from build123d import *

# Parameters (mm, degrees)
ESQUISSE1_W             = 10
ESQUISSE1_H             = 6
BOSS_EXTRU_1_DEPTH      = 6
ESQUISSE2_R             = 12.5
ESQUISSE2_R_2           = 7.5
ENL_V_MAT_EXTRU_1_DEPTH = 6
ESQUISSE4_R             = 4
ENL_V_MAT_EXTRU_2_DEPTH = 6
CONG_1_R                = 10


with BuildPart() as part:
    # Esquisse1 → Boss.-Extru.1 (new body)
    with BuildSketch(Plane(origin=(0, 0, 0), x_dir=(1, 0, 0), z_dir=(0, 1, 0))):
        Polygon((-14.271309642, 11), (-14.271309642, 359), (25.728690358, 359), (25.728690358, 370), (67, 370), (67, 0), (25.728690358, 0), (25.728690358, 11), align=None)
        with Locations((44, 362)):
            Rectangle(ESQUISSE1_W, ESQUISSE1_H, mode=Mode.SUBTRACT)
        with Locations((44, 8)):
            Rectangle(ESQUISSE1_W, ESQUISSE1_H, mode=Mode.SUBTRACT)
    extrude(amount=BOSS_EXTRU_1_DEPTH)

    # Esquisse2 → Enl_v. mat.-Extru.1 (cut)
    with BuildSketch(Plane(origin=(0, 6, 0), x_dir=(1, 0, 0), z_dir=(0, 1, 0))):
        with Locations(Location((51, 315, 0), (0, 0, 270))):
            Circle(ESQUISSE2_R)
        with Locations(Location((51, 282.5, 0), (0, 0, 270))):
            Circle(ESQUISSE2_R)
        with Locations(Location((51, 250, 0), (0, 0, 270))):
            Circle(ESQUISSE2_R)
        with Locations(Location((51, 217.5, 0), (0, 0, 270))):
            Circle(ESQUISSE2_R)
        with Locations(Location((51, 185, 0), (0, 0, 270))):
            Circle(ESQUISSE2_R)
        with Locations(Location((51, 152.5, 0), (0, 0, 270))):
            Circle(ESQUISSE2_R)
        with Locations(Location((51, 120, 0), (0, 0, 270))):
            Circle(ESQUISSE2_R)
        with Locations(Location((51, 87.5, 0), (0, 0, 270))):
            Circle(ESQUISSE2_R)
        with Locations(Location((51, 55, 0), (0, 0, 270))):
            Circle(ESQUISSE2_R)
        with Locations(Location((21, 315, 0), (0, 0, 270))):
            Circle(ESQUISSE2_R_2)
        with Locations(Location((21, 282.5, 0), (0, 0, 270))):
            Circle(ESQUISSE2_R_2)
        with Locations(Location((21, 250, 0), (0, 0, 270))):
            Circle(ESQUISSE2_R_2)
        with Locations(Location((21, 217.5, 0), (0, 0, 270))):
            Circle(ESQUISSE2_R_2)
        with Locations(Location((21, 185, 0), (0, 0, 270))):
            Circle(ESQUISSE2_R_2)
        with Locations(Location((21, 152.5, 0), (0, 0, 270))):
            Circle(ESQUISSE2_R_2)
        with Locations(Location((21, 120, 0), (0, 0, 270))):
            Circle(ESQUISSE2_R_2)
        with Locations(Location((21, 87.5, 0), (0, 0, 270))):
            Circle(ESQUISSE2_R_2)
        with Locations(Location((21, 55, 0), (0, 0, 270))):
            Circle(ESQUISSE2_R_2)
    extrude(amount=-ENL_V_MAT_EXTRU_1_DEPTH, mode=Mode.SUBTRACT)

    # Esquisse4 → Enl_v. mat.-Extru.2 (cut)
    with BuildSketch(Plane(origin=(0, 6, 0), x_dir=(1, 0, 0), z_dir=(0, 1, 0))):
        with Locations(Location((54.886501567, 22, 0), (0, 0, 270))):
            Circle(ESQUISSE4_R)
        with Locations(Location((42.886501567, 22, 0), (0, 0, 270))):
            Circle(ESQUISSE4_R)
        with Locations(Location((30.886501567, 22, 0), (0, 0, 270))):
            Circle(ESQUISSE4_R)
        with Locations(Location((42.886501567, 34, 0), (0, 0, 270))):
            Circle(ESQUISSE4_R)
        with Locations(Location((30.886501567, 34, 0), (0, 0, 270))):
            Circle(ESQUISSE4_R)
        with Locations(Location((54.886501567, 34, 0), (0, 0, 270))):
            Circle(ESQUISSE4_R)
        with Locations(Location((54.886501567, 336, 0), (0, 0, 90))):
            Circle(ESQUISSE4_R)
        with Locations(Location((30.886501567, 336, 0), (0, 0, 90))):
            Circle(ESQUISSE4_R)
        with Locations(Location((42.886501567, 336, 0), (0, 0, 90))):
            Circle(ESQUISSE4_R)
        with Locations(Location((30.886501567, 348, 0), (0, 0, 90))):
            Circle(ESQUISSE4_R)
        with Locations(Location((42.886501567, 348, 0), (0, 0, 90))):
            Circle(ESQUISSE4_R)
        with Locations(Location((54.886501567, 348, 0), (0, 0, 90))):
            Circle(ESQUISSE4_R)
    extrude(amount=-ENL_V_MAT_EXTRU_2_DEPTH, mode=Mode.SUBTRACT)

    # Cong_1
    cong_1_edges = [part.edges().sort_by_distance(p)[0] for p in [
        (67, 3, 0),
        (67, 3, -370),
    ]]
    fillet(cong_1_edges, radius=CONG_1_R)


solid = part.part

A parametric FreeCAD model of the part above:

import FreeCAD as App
import Part
import Sketcher
from FreeCAD import Vector
Q = App.Units.Quantity


def edges_at(feature, points):
    """Names of the edges that pass closest to the given points."""
    edges = feature.Shape.Edges
    near = lambda p: min(range(len(edges)), key=lambda i: edges[i].distToShape(Part.Vertex(*p))[0])
    return sorted({f"Edge{near(p) + 1}" for p in points})

doc = App.newDocument("Part")
body = doc.addObject("PartDesign::Body", "Body")

sketch1 = body.newObject("Sketcher::SketchObject", "Sketch")
sketch1.AttachmentSupport = (doc.getObject("XZ_Plane"), [""])
sketch1.MapMode = "FlatFace"
sketch1.addGeometry(Part.LineSegment(Vector(-14, -359, 0), Vector(-14, -11, 0)), False)
sketch1.addGeometry(Part.LineSegment(Vector(-14, -11, 0), Vector(26, -11, 0)), False)
sketch1.addGeometry(Part.LineSegment(Vector(26, -11, 0), Vector(26, 0, 0)), False)
sketch1.addGeometry(Part.LineSegment(Vector(26, 0, 0), Vector(67, 0, 0)), False)
sketch1.addGeometry(Part.LineSegment(Vector(67, 0, 0), Vector(67, -370, 0)), False)
sketch1.addGeometry(Part.LineSegment(Vector(67, -370, 0), Vector(26, -370, 0)), False)
sketch1.addGeometry(Part.LineSegment(Vector(26, -370, 0), Vector(26, -359, 0)), False)
sketch1.addGeometry(Part.LineSegment(Vector(26, -359, 0), Vector(-14, -359, 0)), False)
sketch1.addGeometry(Part.LineSegment(Vector(39, -5, 0), Vector(39, -11, 0)), False)
sketch1.addGeometry(Part.LineSegment(Vector(39, -11, 0), Vector(49, -11, 0)), False)
sketch1.addGeometry(Part.LineSegment(Vector(49, -11, 0), Vector(49, -5, 0)), False)
sketch1.addGeometry(Part.LineSegment(Vector(49, -5, 0), Vector(39, -5, 0)), False)
sketch1.addGeometry(Part.LineSegment(Vector(39, -359, 0), Vector(39, -365, 0)), False)
sketch1.addGeometry(Part.LineSegment(Vector(39, -365, 0), Vector(49, -365, 0)), False)
sketch1.addGeometry(Part.LineSegment(Vector(49, -365, 0), Vector(49, -359, 0)), False)
sketch1.addGeometry(Part.LineSegment(Vector(49, -359, 0), Vector(39, -359, 0)), False)
sketch1.addConstraint(Sketcher.Constraint("Coincident", 0, 2, 1, 1))
sketch1.addConstraint(Sketcher.Constraint("Coincident", 1, 2, 2, 1))
sketch1.addConstraint(Sketcher.Constraint("Coincident", 2, 2, 3, 1))
sketch1.addConstraint(Sketcher.Constraint("Coincident", 3, 2, 4, 1))
sketch1.addConstraint(Sketcher.Constraint("Coincident", 4, 2, 5, 1))
sketch1.addConstraint(Sketcher.Constraint("Coincident", 5, 2, 6, 1))
sketch1.addConstraint(Sketcher.Constraint("Coincident", 6, 2, 7, 1))
sketch1.addConstraint(Sketcher.Constraint("Coincident", 7, 2, 0, 1))
sketch1.addConstraint(Sketcher.Constraint("Coincident", 8, 2, 9, 1))
sketch1.addConstraint(Sketcher.Constraint("Coincident", 9, 2, 10, 1))
sketch1.addConstraint(Sketcher.Constraint("Coincident", 10, 2, 11, 1))
sketch1.addConstraint(Sketcher.Constraint("Coincident", 11, 2, 8, 1))
sketch1.addConstraint(Sketcher.Constraint("Coincident", 12, 2, 13, 1))
sketch1.addConstraint(Sketcher.Constraint("Coincident", 13, 2, 14, 1))
sketch1.addConstraint(Sketcher.Constraint("Coincident", 14, 2, 15, 1))
sketch1.addConstraint(Sketcher.Constraint("Coincident", 15, 2, 12, 1))
sketch1.addConstraint(Sketcher.Constraint("Vertical", 0))
sketch1.addConstraint(Sketcher.Constraint("Horizontal", 1))
sketch1.addConstraint(Sketcher.Constraint("Vertical", 2))
sketch1.addConstraint(Sketcher.Constraint("Horizontal", 3))
sketch1.addConstraint(Sketcher.Constraint("Vertical", 4))
sketch1.addConstraint(Sketcher.Constraint("Horizontal", 5))
sketch1.addConstraint(Sketcher.Constraint("Vertical", 6))
sketch1.addConstraint(Sketcher.Constraint("Horizontal", 7))
sketch1.addConstraint(Sketcher.Constraint("Vertical", 8))
sketch1.addConstraint(Sketcher.Constraint("Horizontal", 9))
sketch1.addConstraint(Sketcher.Constraint("Vertical", 10))
sketch1.addConstraint(Sketcher.Constraint("Horizontal", 11))
sketch1.addConstraint(Sketcher.Constraint("Vertical", 12))
sketch1.addConstraint(Sketcher.Constraint("Horizontal", 13))
sketch1.addConstraint(Sketcher.Constraint("Vertical", 14))
sketch1.addConstraint(Sketcher.Constraint("Horizontal", 15))
sketch1.addConstraint(Sketcher.Constraint("PointOnObject", 2, 2, -1))
sketch1.addConstraint(Sketcher.Constraint("Horizontal", 1, 2, 8, 2))
sketch1.addConstraint(Sketcher.Constraint("Horizontal", 7, 2, 14, 2))
sketch1.addConstraint(Sketcher.Constraint("Vertical", 2, 2, 5, 2))
sketch1.addConstraint(Sketcher.Constraint("Vertical", 11, 2, 12, 2))
sketch1.addConstraint(Sketcher.Constraint("Vertical", 10, 2, 13, 2))
sketch1.addConstraint(Sketcher.Constraint("Equal", 2, 6))
sketch1.addConstraint(Sketcher.Constraint("Equal", 10, 12))
sketch1.addConstraint(Sketcher.Constraint("DistanceX", 1, 1, 1, 2, Q("40 mm")))
sketch1.addConstraint(Sketcher.Constraint("DistanceX", 9, 1, 9, 2, Q("10 mm")))
sketch1.addConstraint(Sketcher.Constraint("DistanceY", 0, 1, 0, 2, Q("348 mm")))
sketch1.addConstraint(Sketcher.Constraint("DistanceY", 2, 1, 2, 2, Q("11 mm")))
sketch1.addConstraint(Sketcher.Constraint("DistanceY", 8, 2, 8, 1, Q("6 mm")))
sketch1.addConstraint(Sketcher.Constraint("DistanceX", -1, 1, 3, 2, Q("67 mm")))
sketch1.addConstraint(Sketcher.Constraint("DistanceX", -1, 1, 8, 2, Q("39 mm")))
sketch1.addConstraint(Sketcher.Constraint("DistanceX", 3, 1, 3, 2, Q("41.27131 mm")))
pad1 = body.newObject("PartDesign::Pad", "Pad")
pad1.Profile = sketch1
pad1.Length = 6
pad1.Reversed = True

sketch2 = body.newObject("Sketcher::SketchObject", "Sketch001")
sketch2.AttachmentSupport = (doc.getObject("XZ_Plane"), [""])
sketch2.MapMode = "FlatFace"
sketch2.AttachmentOffset = App.Placement(Vector(0, 0, -6), App.Rotation())
sketch2.addGeometry(Part.Circle(Vector(51, -315, 0), Vector(0, 0, 1), 12), False)
sketch2.addGeometry(Part.Circle(Vector(51, -282, 0), Vector(0, 0, 1), 12), False)
sketch2.addGeometry(Part.Circle(Vector(51, -250, 0), Vector(0, 0, 1), 12), False)
sketch2.addGeometry(Part.Circle(Vector(51, -218, 0), Vector(0, 0, 1), 12), False)
sketch2.addGeometry(Part.Circle(Vector(51, -185, 0), Vector(0, 0, 1), 12), False)
sketch2.addGeometry(Part.Circle(Vector(51, -152, 0), Vector(0, 0, 1), 12), False)
sketch2.addGeometry(Part.Circle(Vector(51, -120, 0), Vector(0, 0, 1), 12), False)
sketch2.addGeometry(Part.Circle(Vector(51, -88, 0), Vector(0, 0, 1), 12), False)
sketch2.addGeometry(Part.Circle(Vector(51, -55, 0), Vector(0, 0, 1), 12), False)
sketch2.addGeometry(Part.Circle(Vector(21, -315, 0), Vector(0, 0, 1), 8), False)
sketch2.addGeometry(Part.Circle(Vector(21, -282, 0), Vector(0, 0, 1), 8), False)
sketch2.addGeometry(Part.Circle(Vector(21, -250, 0), Vector(0, 0, 1), 8), False)
sketch2.addGeometry(Part.Circle(Vector(21, -218, 0), Vector(0, 0, 1), 8), False)
sketch2.addGeometry(Part.Circle(Vector(21, -185, 0), Vector(0, 0, 1), 8), False)
sketch2.addGeometry(Part.Circle(Vector(21, -152, 0), Vector(0, 0, 1), 8), False)
sketch2.addGeometry(Part.Circle(Vector(21, -120, 0), Vector(0, 0, 1), 8), False)
sketch2.addGeometry(Part.Circle(Vector(21, -88, 0), Vector(0, 0, 1), 8), False)
sketch2.addGeometry(Part.Circle(Vector(21, -55, 0), Vector(0, 0, 1), 8), False)
sketch2.addConstraint(Sketcher.Constraint("Equal", 0, 1))
sketch2.addConstraint(Sketcher.Constraint("Equal", 1, 2))
sketch2.addConstraint(Sketcher.Constraint("Equal", 2, 3))
sketch2.addConstraint(Sketcher.Constraint("Equal", 3, 4))
sketch2.addConstraint(Sketcher.Constraint("Equal", 4, 5))
sketch2.addConstraint(Sketcher.Constraint("Equal", 5, 6))
sketch2.addConstraint(Sketcher.Constraint("Equal", 6, 7))
sketch2.addConstraint(Sketcher.Constraint("Equal", 7, 8))
sketch2.addConstraint(Sketcher.Constraint("Equal", 9, 10))
sketch2.addConstraint(Sketcher.Constraint("Equal", 10, 11))
sketch2.addConstraint(Sketcher.Constraint("Equal", 11, 12))
sketch2.addConstraint(Sketcher.Constraint("Equal", 12, 13))
sketch2.addConstraint(Sketcher.Constraint("Equal", 13, 14))
sketch2.addConstraint(Sketcher.Constraint("Equal", 14, 15))
sketch2.addConstraint(Sketcher.Constraint("Equal", 15, 16))
sketch2.addConstraint(Sketcher.Constraint("Equal", 16, 17))
sketch2.addConstraint(Sketcher.Constraint("Horizontal", 0, 3, 9, 3))
sketch2.addConstraint(Sketcher.Constraint("Horizontal", 1, 3, 10, 3))
sketch2.addConstraint(Sketcher.Constraint("Horizontal", 2, 3, 11, 3))
sketch2.addConstraint(Sketcher.Constraint("Horizontal", 3, 3, 12, 3))
sketch2.addConstraint(Sketcher.Constraint("Horizontal", 4, 3, 13, 3))
sketch2.addConstraint(Sketcher.Constraint("Horizontal", 5, 3, 14, 3))
sketch2.addConstraint(Sketcher.Constraint("Horizontal", 6, 3, 15, 3))
sketch2.addConstraint(Sketcher.Constraint("Horizontal", 7, 3, 16, 3))
sketch2.addConstraint(Sketcher.Constraint("Horizontal", 8, 3, 17, 3))
sketch2.addConstraint(Sketcher.Constraint("Vertical", 0, 3, 1, 3))
sketch2.addConstraint(Sketcher.Constraint("Vertical", 1, 3, 2, 3))
sketch2.addConstraint(Sketcher.Constraint("Vertical", 2, 3, 3, 3))
sketch2.addConstraint(Sketcher.Constraint("Vertical", 3, 3, 4, 3))
sketch2.addConstraint(Sketcher.Constraint("Vertical", 4, 3, 5, 3))
sketch2.addConstraint(Sketcher.Constraint("Vertical", 5, 3, 6, 3))
sketch2.addConstraint(Sketcher.Constraint("Vertical", 6, 3, 7, 3))
sketch2.addConstraint(Sketcher.Constraint("Vertical", 7, 3, 8, 3))
sketch2.addConstraint(Sketcher.Constraint("Vertical", 9, 3, 10, 3))
sketch2.addConstraint(Sketcher.Constraint("Vertical", 10, 3, 11, 3))
sketch2.addConstraint(Sketcher.Constraint("Vertical", 11, 3, 12, 3))
sketch2.addConstraint(Sketcher.Constraint("Vertical", 12, 3, 13, 3))
sketch2.addConstraint(Sketcher.Constraint("Vertical", 13, 3, 14, 3))
sketch2.addConstraint(Sketcher.Constraint("Vertical", 14, 3, 15, 3))
sketch2.addConstraint(Sketcher.Constraint("Vertical", 15, 3, 16, 3))
sketch2.addConstraint(Sketcher.Constraint("Vertical", 16, 3, 17, 3))
sketch2.addConstraint(Sketcher.Constraint("Diameter", 0, Q("25 mm")))
sketch2.addConstraint(Sketcher.Constraint("Diameter", 9, Q("15 mm")))
sketch2.addConstraint(Sketcher.Constraint("DistanceX", -1, 1, 0, 3, Q("51 mm")))
sketch2.addConstraint(Sketcher.Constraint("DistanceY", 0, 3, -1, 1, Q("315 mm")))
sketch2.addConstraint(Sketcher.Constraint("DistanceY", 2, 3, -1, 1, Q("250 mm")))
sketch2.addConstraint(Sketcher.Constraint("DistanceY", 4, 3, -1, 1, Q("185 mm")))
sketch2.addConstraint(Sketcher.Constraint("DistanceY", 6, 3, -1, 1, Q("120 mm")))
sketch2.addConstraint(Sketcher.Constraint("DistanceY", 8, 3, -1, 1, Q("55 mm")))
sketch2.addConstraint(Sketcher.Constraint("DistanceX", -1, 1, 9, 3, Q("21 mm")))
sketch2.addConstraint(Sketcher.Constraint("DistanceY", 1, 3, 3, 3, Q("65 mm")))
sketch2.addConstraint(Sketcher.Constraint("DistanceY", 3, 3, 5, 3, Q("65 mm")))
sketch2.addConstraint(Sketcher.Constraint("DistanceY", 5, 3, 7, 3, Q("65 mm")))
sketch2.addConstraint(Sketcher.Constraint("DistanceY", 1, 3, -1, 1, Q("282.5 mm")))
pocket1 = body.newObject("PartDesign::Pocket", "Pocket")
pocket1.Profile = sketch2
pocket1.Length = 6
pocket1.Reversed = True

sketch3 = body.newObject("Sketcher::SketchObject", "Sketch002")
sketch3.AttachmentSupport = (doc.getObject("XZ_Plane"), [""])
sketch3.MapMode = "FlatFace"
sketch3.AttachmentOffset = App.Placement(Vector(0, 0, -6), App.Rotation())
sketch3.addGeometry(Part.Circle(Vector(54.9, -22, 0), Vector(0, 0, 1), 4), False)
sketch3.addGeometry(Part.Circle(Vector(42.9, -22, 0), Vector(0, 0, 1), 4), False)
sketch3.addGeometry(Part.Circle(Vector(30.9, -22, 0), Vector(0, 0, 1), 4), False)
sketch3.addGeometry(Part.Circle(Vector(42.9, -34, 0), Vector(0, 0, 1), 4), False)
sketch3.addGeometry(Part.Circle(Vector(30.9, -34, 0), Vector(0, 0, 1), 4), False)
sketch3.addGeometry(Part.Circle(Vector(54.9, -34, 0), Vector(0, 0, 1), 4), False)
sketch3.addGeometry(Part.Circle(Vector(54.9, -336, 0), Vector(0, 0, 1), 4), False)
sketch3.addGeometry(Part.Circle(Vector(30.9, -336, 0), Vector(0, 0, 1), 4), False)
sketch3.addGeometry(Part.Circle(Vector(42.9, -336, 0), Vector(0, 0, 1), 4), False)
sketch3.addGeometry(Part.Circle(Vector(30.9, -348, 0), Vector(0, 0, 1), 4), False)
sketch3.addGeometry(Part.Circle(Vector(42.9, -348, 0), Vector(0, 0, 1), 4), False)
sketch3.addGeometry(Part.Circle(Vector(54.9, -348, 0), Vector(0, 0, 1), 4), False)
sketch3.addConstraint(Sketcher.Constraint("Equal", 0, 1))
sketch3.addConstraint(Sketcher.Constraint("Equal", 1, 2))
sketch3.addConstraint(Sketcher.Constraint("Equal", 2, 3))
sketch3.addConstraint(Sketcher.Constraint("Equal", 3, 4))
sketch3.addConstraint(Sketcher.Constraint("Equal", 4, 5))
sketch3.addConstraint(Sketcher.Constraint("Equal", 5, 6))
sketch3.addConstraint(Sketcher.Constraint("Equal", 6, 7))
sketch3.addConstraint(Sketcher.Constraint("Equal", 7, 8))
sketch3.addConstraint(Sketcher.Constraint("Equal", 8, 9))
sketch3.addConstraint(Sketcher.Constraint("Equal", 9, 10))
sketch3.addConstraint(Sketcher.Constraint("Equal", 10, 11))
sketch3.addConstraint(Sketcher.Constraint("Horizontal", 0, 3, 1, 3))
sketch3.addConstraint(Sketcher.Constraint("Horizontal", 1, 3, 2, 3))
sketch3.addConstraint(Sketcher.Constraint("Horizontal", 3, 3, 4, 3))
sketch3.addConstraint(Sketcher.Constraint("Horizontal", 4, 3, 5, 3))
sketch3.addConstraint(Sketcher.Constraint("Horizontal", 6, 3, 7, 3))
sketch3.addConstraint(Sketcher.Constraint("Horizontal", 7, 3, 8, 3))
sketch3.addConstraint(Sketcher.Constraint("Horizontal", 9, 3, 10, 3))
sketch3.addConstraint(Sketcher.Constraint("Horizontal", 10, 3, 11, 3))
sketch3.addConstraint(Sketcher.Constraint("Vertical", 1, 3, 3, 3))
sketch3.addConstraint(Sketcher.Constraint("Vertical", 2, 3, 4, 3))
sketch3.addConstraint(Sketcher.Constraint("Vertical", 0, 3, 5, 3))
sketch3.addConstraint(Sketcher.Constraint("Vertical", 5, 3, 6, 3))
sketch3.addConstraint(Sketcher.Constraint("Vertical", 4, 3, 7, 3))
sketch3.addConstraint(Sketcher.Constraint("Vertical", 3, 3, 8, 3))
sketch3.addConstraint(Sketcher.Constraint("Vertical", 7, 3, 9, 3))
sketch3.addConstraint(Sketcher.Constraint("Vertical", 8, 3, 10, 3))
sketch3.addConstraint(Sketcher.Constraint("Vertical", 6, 3, 11, 3))
sketch3.addConstraint(Sketcher.Constraint("Diameter", 0, Q("8 mm")))
sketch3.addConstraint(Sketcher.Constraint("DistanceY", 0, 3, -1, 1, Q("22 mm")))
sketch3.addConstraint(Sketcher.Constraint("DistanceY", 3, 3, -1, 1, Q("34 mm")))
sketch3.addConstraint(Sketcher.Constraint("DistanceY", 6, 3, -1, 1, Q("336 mm")))
sketch3.addConstraint(Sketcher.Constraint("DistanceY", 9, 3, -1, 1, Q("348 mm")))
sketch3.addConstraint(Sketcher.Constraint("DistanceX", 1, 3, 0, 3, Q("12 mm")))
sketch3.addConstraint(Sketcher.Constraint("DistanceX", 2, 3, 1, 3, Q("12 mm")))
sketch3.addConstraint(Sketcher.Constraint("DistanceX", -1, 1, 0, 3, Q("54.886502 mm")))
pocket2 = body.newObject("PartDesign::Pocket", "Pocket001")
pocket2.Profile = sketch3
pocket2.Length = 6
pocket2.Reversed = True
doc.recompute()

fillet = body.newObject("PartDesign::Fillet", "Fillet")
fillet.Base = (pocket2, edges_at(pocket2, [(67, 3, 0), (67, 3, -370)]))
fillet.Radius = 10

doc.recompute()
